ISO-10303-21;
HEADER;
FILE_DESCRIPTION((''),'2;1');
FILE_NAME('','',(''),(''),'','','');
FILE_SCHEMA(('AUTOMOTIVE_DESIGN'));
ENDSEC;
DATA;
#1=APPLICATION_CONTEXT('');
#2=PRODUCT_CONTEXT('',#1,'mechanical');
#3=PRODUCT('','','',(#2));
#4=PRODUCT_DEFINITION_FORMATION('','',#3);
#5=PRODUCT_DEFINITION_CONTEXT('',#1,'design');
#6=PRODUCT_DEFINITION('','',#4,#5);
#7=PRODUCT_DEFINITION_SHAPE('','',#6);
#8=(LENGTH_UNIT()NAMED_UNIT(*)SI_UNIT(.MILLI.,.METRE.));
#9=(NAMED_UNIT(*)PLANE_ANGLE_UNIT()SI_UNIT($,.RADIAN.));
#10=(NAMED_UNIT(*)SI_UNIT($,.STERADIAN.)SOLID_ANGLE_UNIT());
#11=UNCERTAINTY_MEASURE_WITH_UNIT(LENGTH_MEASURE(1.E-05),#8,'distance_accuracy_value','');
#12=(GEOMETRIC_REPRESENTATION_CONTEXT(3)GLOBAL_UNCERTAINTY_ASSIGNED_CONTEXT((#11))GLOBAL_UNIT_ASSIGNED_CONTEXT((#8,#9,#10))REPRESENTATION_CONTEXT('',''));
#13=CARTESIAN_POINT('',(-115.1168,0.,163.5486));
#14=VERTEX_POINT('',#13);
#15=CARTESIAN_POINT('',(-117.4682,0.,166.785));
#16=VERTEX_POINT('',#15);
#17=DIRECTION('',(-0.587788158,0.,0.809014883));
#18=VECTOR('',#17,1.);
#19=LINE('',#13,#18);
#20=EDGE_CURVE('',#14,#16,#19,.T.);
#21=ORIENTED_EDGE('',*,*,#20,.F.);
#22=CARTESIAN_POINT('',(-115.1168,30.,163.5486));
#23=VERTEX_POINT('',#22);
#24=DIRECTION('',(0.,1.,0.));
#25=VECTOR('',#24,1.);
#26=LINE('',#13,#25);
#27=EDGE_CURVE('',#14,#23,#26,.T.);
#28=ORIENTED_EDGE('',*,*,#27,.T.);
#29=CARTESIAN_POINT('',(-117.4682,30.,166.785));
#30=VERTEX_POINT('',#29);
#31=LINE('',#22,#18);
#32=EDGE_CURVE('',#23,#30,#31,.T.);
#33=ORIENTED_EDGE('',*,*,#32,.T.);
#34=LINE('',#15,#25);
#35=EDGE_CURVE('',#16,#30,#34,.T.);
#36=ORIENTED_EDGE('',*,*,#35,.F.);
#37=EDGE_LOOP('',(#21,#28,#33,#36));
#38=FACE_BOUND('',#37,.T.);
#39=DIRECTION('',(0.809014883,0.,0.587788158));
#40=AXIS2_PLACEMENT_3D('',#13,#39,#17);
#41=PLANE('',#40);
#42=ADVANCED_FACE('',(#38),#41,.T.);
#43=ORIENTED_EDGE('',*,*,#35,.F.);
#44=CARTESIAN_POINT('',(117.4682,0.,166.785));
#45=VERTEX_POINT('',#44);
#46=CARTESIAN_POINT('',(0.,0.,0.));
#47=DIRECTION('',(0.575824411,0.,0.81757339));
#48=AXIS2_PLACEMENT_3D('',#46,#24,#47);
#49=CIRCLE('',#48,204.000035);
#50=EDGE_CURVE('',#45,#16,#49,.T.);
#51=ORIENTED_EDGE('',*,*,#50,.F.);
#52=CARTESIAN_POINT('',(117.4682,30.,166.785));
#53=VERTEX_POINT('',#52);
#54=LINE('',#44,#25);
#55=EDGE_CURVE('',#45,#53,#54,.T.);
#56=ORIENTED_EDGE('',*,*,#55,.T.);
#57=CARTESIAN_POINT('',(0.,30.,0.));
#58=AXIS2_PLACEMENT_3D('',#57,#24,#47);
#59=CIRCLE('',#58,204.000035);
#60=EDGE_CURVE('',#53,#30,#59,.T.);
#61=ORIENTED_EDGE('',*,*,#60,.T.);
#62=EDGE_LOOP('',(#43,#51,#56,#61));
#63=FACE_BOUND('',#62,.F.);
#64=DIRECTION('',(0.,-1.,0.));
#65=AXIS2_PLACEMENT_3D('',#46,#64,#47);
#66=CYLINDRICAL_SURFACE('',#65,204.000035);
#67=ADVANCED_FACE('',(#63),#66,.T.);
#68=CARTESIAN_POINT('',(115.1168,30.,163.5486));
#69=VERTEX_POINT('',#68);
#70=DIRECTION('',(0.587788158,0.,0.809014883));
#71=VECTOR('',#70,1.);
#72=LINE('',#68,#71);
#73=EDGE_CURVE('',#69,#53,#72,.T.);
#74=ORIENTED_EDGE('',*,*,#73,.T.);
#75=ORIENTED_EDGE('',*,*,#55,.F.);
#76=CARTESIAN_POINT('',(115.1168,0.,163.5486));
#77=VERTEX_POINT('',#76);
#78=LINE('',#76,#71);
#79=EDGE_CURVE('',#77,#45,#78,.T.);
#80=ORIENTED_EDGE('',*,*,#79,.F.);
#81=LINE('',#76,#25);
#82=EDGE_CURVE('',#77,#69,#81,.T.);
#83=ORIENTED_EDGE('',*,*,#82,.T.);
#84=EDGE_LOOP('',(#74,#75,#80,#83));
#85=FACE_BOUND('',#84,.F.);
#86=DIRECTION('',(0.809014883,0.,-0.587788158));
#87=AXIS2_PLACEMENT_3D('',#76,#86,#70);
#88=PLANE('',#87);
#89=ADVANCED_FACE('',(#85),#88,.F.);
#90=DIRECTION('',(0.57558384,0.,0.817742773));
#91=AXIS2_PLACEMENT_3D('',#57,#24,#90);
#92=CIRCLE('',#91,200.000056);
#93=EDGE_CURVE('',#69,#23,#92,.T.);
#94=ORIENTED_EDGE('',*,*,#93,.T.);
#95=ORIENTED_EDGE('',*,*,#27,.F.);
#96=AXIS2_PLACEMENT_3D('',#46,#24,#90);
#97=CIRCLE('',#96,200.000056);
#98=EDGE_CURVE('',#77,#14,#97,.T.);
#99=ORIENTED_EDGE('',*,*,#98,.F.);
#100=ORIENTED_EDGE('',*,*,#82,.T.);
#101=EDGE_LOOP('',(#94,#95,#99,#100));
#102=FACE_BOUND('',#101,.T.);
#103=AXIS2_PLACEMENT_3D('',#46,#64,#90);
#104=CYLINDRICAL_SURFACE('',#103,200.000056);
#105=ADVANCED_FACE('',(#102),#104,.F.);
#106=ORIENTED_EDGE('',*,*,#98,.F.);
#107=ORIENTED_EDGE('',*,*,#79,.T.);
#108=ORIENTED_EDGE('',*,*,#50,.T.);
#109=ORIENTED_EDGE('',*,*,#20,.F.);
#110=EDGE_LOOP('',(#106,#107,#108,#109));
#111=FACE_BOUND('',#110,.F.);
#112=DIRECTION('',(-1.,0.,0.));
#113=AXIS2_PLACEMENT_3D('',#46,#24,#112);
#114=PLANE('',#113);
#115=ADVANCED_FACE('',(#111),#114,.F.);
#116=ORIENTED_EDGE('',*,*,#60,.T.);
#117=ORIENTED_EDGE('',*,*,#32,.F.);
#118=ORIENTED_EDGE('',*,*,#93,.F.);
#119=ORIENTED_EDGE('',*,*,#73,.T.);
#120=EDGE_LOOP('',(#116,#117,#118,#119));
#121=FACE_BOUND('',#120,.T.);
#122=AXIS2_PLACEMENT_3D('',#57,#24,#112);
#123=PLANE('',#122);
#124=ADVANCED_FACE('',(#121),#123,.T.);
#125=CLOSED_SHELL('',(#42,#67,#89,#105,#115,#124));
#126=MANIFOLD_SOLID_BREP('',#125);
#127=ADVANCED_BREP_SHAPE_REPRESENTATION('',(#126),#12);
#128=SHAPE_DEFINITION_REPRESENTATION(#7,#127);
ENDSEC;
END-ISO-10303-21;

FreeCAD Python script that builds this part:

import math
import FreeCAD as App
import Part
import Sketcher

V = App.Vector
Q = App.Units.Quantity

doc = App.newDocument("Part")
body = doc.addObject("PartDesign::Body", "Body")

sketch1 = doc.addObject("Sketcher::SketchObject", "Sketch")
body.addObject(sketch1)
sketch1.AttachmentSupport = (doc.XZ_Plane, [""])
sketch1.MapMode = "FlatFace"
sketch1.addGeometry([
    Part.ArcOfCircle(Part.Circle(V(0, 0, 0), V(0, 0, 1), 200), math.radians(125), math.radians(415)),
    Part.LineSegment(V(115.1, 163.5, 0), V(117.5, 166.8, 0)),
    Part.ArcOfCircle(Part.Circle(V(0, 0, 0), V(0, 0, 1), 204), math.radians(125), math.radians(415)),
    Part.LineSegment(V(-117.5, 166.8, 0), V(-115.1, 163.5, 0)),
], False)
sketch1.addConstraint([
    Sketcher.Constraint("Coincident", 0, 2, 1, 1),
    Sketcher.Constraint("Coincident", 1, 2, 2, 2),
    Sketcher.Constraint("Coincident", 2, 1, 3, 1),
    Sketcher.Constraint("Coincident", 3, 2, 0, 1),
    Sketcher.Constraint("Coincident", 0, 3, -1, 1),
    Sketcher.Constraint("Coincident", 2, 3, -1, 1),
    Sketcher.Constraint("Horizontal", 1, 2, 2, 1),
    Sketcher.Constraint("Horizontal", 0, 2, 3, 2),
    Sketcher.Constraint("Radius", 0, Q("200 mm")),
    Sketcher.Constraint("Radius", 2, Q("204 mm")),
    Sketcher.Constraint("Angle", 1, Q("53.9998 deg")),
    Sketcher.Constraint("DistanceY", -1, 1, 1, 2, Q("166.785 mm")),
])
pad1 = doc.addObject("PartDesign::Pad", "Pad")
body.addObject(pad1)
pad1.Profile = sketch1
pad1.Length = 30
pad1.Reversed = True

doc.recompute()
